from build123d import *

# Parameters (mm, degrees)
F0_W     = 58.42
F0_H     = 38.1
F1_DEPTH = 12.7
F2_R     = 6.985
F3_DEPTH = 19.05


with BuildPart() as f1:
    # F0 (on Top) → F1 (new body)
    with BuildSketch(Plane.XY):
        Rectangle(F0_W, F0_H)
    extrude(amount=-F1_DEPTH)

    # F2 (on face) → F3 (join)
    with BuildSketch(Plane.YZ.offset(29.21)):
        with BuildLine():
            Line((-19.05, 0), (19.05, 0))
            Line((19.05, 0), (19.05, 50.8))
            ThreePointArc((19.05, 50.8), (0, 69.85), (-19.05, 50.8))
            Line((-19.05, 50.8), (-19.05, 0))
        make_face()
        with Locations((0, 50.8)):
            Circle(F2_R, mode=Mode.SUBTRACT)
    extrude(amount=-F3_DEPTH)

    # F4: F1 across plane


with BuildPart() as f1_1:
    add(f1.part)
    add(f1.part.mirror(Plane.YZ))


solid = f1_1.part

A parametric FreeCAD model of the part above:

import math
import FreeCAD as App
import Part
import Sketcher
Q = App.Units.Quantity


def add_polygon(sketch, points):
    """Adds a closed chain of lines whose ends are joined by coincident constraints."""
    first, n = sketch.GeometryCount, len(points)
    for a, b in zip(points, points[1:] + points[:1]):
        sketch.addGeometry(Part.LineSegment(App.Vector(*a, 0), App.Vector(*b, 0)), False)
    for i in range(n):
        sketch.addConstraint(Sketcher.Constraint("Coincident", first + i, 2, first + (i + 1) % n, 1))

doc = App.newDocument("Part")
body = doc.addObject("PartDesign::Body", "Body")

# Sketch on XY plane
sketch1 = body.newObject("Sketcher::SketchObject", "Sketch")
sketch1.AttachmentSupport = (doc.getObject("XY_Plane"), [""])
sketch1.MapMode = "FlatFace"
add_polygon(sketch1, [(-29, 19), (-29, -19), (29, -19), (29, 19)])  # lines 0-3
sketch1.addConstraint(Sketcher.Constraint("Vertical", 0))
sketch1.addConstraint(Sketcher.Constraint("Horizontal", 1))
sketch1.addConstraint(Sketcher.Constraint("Vertical", 2))
sketch1.addConstraint(Sketcher.Constraint("Horizontal", 3))
sketch1.addConstraint(Sketcher.Constraint("Symmetric", 0, 2, 2, 2, -1, 1))
sketch1.addConstraint(Sketcher.Constraint("DistanceX", 1, 1, 1, 2, Q("2.3 in")))
sketch1.addConstraint(Sketcher.Constraint("DistanceY", 0, 2, 0, 1, Q("1.5 in")))
pad1 = body.newObject("PartDesign::Pad", "Pad")
pad1.Profile = sketch1
pad1.Length = Q("0.5 in")
pad1.Reversed = True

# Sketch on YZ plane
sketch2 = body.newObject("Sketcher::SketchObject", "Sketch001")
sketch2.AttachmentSupport = (doc.getObject("YZ_Plane"), [""])
sketch2.MapMode = "FlatFace"
sketch2.AttachmentOffset = App.Placement(App.Vector(0, 0, 1.15 * 25.4), App.Rotation())
sketch2.addGeometry(Part.LineSegment(App.Vector(-19, 0, 0), App.Vector(19, 0, 0)), False)
sketch2.addGeometry(Part.LineSegment(App.Vector(19, 0, 0), App.Vector(19, 51, 0)), False)
sketch2.addGeometry(Part.ArcOfCircle(Part.Circle(App.Vector(0, 51, 0), App.Vector(0, 0, 1), 19), math.radians(0), math.radians(180)), False)
sketch2.addGeometry(Part.LineSegment(App.Vector(-19, 51, 0), App.Vector(-19, 0, 0)), False)
sketch2.addGeometry(Part.Circle(App.Vector(0, 51, 0), App.Vector(0, 0, 1), 7), False)
sketch2.addConstraint(Sketcher.Constraint("Coincident", 0, 2, 1, 1))
sketch2.addConstraint(Sketcher.Constraint("Tangent", 1, 2, 2, 1))
sketch2.addConstraint(Sketcher.Constraint("Tangent", 2, 2, 3, 1))
sketch2.addConstraint(Sketcher.Constraint("Coincident", 3, 2, 0, 1))
sketch2.addConstraint(Sketcher.Constraint("Horizontal", 0))
sketch2.addConstraint(Sketcher.Constraint("Vertical", 1))
sketch2.addConstraint(Sketcher.Constraint("Vertical", 3))
sketch2.addConstraint(Sketcher.Constraint("Coincident", 4, 3, 2, 3))
sketch2.addConstraint(Sketcher.Constraint("Symmetric", 0, 2, 3, 2, -1, 1))
sketch2.addConstraint(Sketcher.Constraint("Diameter", 4, Q("0.55 in")))
sketch2.addConstraint(Sketcher.Constraint("DistanceY", 1, 1, 1, 2, Q("2 in")))
sketch2.addConstraint(Sketcher.Constraint("Radius", 2, Q("0.75 in")))
pad2 = body.newObject("PartDesign::Pad", "Pad001")
pad2.Profile = sketch2
pad2.Length = Q("0.75 in")
pad2.Reversed = True
body2 = doc.addObject("PartDesign::Body", "Body001")
doc.recompute()

body2.BaseFeature = body
doc.recompute()

mirroring = doc.addObject("Part::Mirroring", "Mirroring")
mirroring.Source = body
mirroring.Base = App.Vector(0, 0, 0)
mirroring.Normal = App.Vector(1, 0, 0)
body3 = doc.addObject("PartDesign::Body", "Body002")
body3.BaseFeature = mirroring
boolean = body2.newObject("PartDesign::Boolean", "Boolean")
boolean.Type = "Fuse"
boolean.addObjects([body3])
doc.recompute()
mirroring.Visibility = False

doc.recompute()
